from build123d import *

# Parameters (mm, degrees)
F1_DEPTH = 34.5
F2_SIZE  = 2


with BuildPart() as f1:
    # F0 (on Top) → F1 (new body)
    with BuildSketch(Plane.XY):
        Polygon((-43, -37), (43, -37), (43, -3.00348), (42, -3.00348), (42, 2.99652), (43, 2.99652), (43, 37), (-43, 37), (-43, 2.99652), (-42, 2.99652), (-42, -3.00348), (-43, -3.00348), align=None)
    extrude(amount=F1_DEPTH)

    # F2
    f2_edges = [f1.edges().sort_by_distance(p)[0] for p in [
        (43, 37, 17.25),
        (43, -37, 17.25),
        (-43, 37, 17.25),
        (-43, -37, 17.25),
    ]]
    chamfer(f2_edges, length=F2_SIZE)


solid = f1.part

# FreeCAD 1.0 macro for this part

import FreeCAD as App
import Part
import Sketcher

V = App.Vector
Q = App.Units.Quantity


def edges_at(feature, points):
    """Names of the edges that pass closest to the given points."""
    edges = feature.Shape.Edges
    near = lambda p: min(range(len(edges)), key=lambda i: edges[i].distToShape(Part.Vertex(*p))[0])
    return sorted({f"Edge{near(p) + 1}" for p in points})

doc = App.newDocument("Part")
body = doc.addObject("PartDesign::Body", "Body")

# Sketch on XY plane
sketch1 = body.newObject("Sketcher::SketchObject", "Sketch")
sketch1.AttachmentSupport = (doc.getObject("XY_Plane"), [""])
sketch1.MapMode = "FlatFace"
sketch1.addGeometry(Part.LineSegment(V(-43, -37, 0), V(43, -37, 0)), False)
sketch1.addGeometry(Part.LineSegment(V(43, -37, 0), V(43, -3, 0)), False)
sketch1.addGeometry(Part.LineSegment(V(43, -3, 0), V(42, -3, 0)), False)
sketch1.addGeometry(Part.LineSegment(V(42, -3, 0), V(42, 3, 0)), False)
sketch1.addGeometry(Part.LineSegment(V(42, 3, 0), V(43, 3, 0)), False)
sketch1.addGeometry(Part.LineSegment(V(43, 3, 0), V(43, 37, 0)), False)
sketch1.addGeometry(Part.LineSegment(V(43, 37, 0), V(-43, 37, 0)), False)
sketch1.addGeometry(Part.LineSegment(V(-43, 37, 0), V(-43, 3, 0)), False)
sketch1.addGeometry(Part.LineSegment(V(-43, 3, 0), V(-42, 3, 0)), False)
sketch1.addGeometry(Part.LineSegment(V(-42, 3, 0), V(-42, -3, 0)), False)
sketch1.addGeometry(Part.LineSegment(V(-42, -3, 0), V(-43, -3, 0)), False)
sketch1.addGeometry(Part.LineSegment(V(-43, -3, 0), V(-43, -37, 0)), False)
sketch1.addConstraint(Sketcher.Constraint("Coincident", 0, 2, 1, 1))
sketch1.addConstraint(Sketcher.Constraint("Coincident", 1, 2, 2, 1))
sketch1.addConstraint(Sketcher.Constraint("Coincident", 2, 2, 3, 1))
sketch1.addConstraint(Sketcher.Constraint("Coincident", 3, 2, 4, 1))
sketch1.addConstraint(Sketcher.Constraint("Coincident", 4, 2, 5, 1))
sketch1.addConstraint(Sketcher.Constraint("Coincident", 5, 2, 6, 1))
sketch1.addConstraint(Sketcher.Constraint("Coincident", 6, 2, 7, 1))
sketch1.addConstraint(Sketcher.Constraint("Coincident", 7, 2, 8, 1))
sketch1.addConstraint(Sketcher.Constraint("Coincident", 8, 2, 9, 1))
sketch1.addConstraint(Sketcher.Constraint("Coincident", 9, 2, 10, 1))
sketch1.addConstraint(Sketcher.Constraint("Coincident", 10, 2, 11, 1))
sketch1.addConstraint(Sketcher.Constraint("Coincident", 11, 2, 0, 1))
sketch1.addConstraint(Sketcher.Constraint("Horizontal", 0))
sketch1.addConstraint(Sketcher.Constraint("Vertical", 1))
sketch1.addConstraint(Sketcher.Constraint("Horizontal", 2))
sketch1.addConstraint(Sketcher.Constraint("Vertical", 3))
sketch1.addConstraint(Sketcher.Constraint("Horizontal", 4))
sketch1.addConstraint(Sketcher.Constraint("Vertical", 5))
sketch1.addConstraint(Sketcher.Constraint("Horizontal", 6))
sketch1.addConstraint(Sketcher.Constraint("Vertical", 7))
sketch1.addConstraint(Sketcher.Constraint("Horizontal", 8))
sketch1.addConstraint(Sketcher.Constraint("Vertical", 9))
sketch1.addConstraint(Sketcher.Constraint("Horizontal", 10))
sketch1.addConstraint(Sketcher.Constraint("Vertical", 11))
sketch1.addConstraint(Sketcher.Constraint("Symmetric", 0, 2, 6, 2, -1, 1))
sketch1.addConstraint(Sketcher.Constraint("Symmetric", 4, 2, 7, 2, -2))
sketch1.addConstraint(Sketcher.Constraint("Symmetric", 2, 2, 9, 2, -2))
sketch1.addConstraint(Sketcher.Constraint("Vertical", 7, 2, 10, 2))
sketch1.addConstraint(Sketcher.Constraint("DistanceX", 0, 1, 0, 2, Q("86 mm")))
sketch1.addConstraint(Sketcher.Constraint("DistanceX", 2, 2, 2, 1, Q("1 mm")))
sketch1.addConstraint(Sketcher.Constraint("DistanceY", 3, 1, 3, 2, Q("6 mm")))
sketch1.addConstraint(Sketcher.Constraint("DistanceY", 0, 2, -1, 1, Q("37 mm")))
sketch1.addConstraint(Sketcher.Constraint("DistanceY", 1, 1, 1, 2, Q("33.99652 mm")))
pad1 = body.newObject("PartDesign::Pad", "Pad")
pad1.Profile = sketch1
pad1.Length = 34.5
doc.recompute()

chamfer = body.newObject("PartDesign::Chamfer", "Chamfer")
chamfer.Base = (pad1, edges_at(pad1, [
    (43, 37, 17.25),
    (43, -37, 17.25),
    (-43, 37, 17.25),
    (-43, -37, 17.25),
]))
chamfer.Size = 2

doc.recompute()
